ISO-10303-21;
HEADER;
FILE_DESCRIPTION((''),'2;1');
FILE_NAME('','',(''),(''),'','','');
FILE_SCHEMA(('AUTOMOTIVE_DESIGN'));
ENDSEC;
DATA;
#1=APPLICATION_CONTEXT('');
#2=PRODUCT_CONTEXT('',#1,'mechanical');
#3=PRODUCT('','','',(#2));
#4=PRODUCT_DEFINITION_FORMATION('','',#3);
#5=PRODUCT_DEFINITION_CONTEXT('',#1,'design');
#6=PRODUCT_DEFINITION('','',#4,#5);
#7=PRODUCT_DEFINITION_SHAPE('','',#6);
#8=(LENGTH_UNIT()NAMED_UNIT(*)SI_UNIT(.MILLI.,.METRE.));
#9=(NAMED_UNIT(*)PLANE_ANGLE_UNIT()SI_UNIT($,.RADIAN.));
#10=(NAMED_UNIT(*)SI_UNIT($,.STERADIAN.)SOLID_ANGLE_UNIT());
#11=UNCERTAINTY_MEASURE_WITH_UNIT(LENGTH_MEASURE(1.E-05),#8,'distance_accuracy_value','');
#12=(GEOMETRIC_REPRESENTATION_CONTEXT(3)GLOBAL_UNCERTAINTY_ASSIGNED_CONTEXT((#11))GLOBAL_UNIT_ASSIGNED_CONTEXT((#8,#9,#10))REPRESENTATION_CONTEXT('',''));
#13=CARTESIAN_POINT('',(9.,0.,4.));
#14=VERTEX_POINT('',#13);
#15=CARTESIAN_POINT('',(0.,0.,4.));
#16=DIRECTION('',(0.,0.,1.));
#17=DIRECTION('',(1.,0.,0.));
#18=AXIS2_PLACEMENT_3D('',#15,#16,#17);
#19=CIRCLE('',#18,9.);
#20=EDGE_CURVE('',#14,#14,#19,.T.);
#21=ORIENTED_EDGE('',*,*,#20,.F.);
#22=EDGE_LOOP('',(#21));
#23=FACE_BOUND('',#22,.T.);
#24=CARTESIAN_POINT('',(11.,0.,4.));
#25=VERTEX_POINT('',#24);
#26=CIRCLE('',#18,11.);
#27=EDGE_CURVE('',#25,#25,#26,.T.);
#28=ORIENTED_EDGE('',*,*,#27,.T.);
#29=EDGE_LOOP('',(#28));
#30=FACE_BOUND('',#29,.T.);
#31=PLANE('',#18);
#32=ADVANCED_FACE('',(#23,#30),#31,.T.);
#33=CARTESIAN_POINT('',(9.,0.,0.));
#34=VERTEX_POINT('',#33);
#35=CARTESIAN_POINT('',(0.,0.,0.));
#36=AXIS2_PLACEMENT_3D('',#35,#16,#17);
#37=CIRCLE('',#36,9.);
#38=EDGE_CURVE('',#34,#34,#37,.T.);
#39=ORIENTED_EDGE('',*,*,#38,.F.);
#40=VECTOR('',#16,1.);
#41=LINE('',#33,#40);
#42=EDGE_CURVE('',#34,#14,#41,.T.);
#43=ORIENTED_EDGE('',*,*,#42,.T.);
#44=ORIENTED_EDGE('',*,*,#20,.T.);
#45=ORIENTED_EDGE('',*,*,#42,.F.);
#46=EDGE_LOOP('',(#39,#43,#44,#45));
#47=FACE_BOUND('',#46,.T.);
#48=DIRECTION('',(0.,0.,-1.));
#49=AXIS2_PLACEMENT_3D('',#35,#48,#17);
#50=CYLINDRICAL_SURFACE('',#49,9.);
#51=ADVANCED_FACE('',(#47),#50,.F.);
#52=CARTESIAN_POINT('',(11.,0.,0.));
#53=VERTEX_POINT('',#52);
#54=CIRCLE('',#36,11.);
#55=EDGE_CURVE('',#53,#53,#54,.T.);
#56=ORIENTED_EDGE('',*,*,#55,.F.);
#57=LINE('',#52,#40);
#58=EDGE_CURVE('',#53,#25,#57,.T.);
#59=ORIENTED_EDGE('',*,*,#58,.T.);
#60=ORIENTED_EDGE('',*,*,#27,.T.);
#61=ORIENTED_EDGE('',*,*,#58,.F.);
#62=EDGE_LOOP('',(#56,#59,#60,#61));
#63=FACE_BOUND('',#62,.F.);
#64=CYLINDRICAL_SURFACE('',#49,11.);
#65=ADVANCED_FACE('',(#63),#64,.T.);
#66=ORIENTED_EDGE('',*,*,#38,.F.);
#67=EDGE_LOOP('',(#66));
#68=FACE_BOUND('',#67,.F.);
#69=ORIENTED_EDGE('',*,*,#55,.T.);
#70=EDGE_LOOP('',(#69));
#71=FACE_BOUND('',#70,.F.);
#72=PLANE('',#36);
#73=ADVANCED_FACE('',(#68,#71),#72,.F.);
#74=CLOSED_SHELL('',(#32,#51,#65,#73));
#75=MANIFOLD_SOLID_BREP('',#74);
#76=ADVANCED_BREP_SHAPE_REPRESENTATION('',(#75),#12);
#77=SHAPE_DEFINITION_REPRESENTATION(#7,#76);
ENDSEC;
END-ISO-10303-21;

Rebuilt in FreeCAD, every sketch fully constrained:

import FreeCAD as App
import Part
import Sketcher

V = App.Vector

doc = App.newDocument("Part")
body = doc.addObject("PartDesign::Body", "Body")

sketch1 = body.newObject("Sketcher::SketchObject", "Sketch")
sketch1.AttachmentSupport = (doc.getObject("XY_Plane"), [""])
sketch1.MapMode = "FlatFace"
sketch1.addGeometry([
    Part.Circle(V(0, 0, 0), V(0, 0, 1), 11),
    Part.Circle(V(0, 0, 0), V(0, 0, 1), 9),
], False)
sketch1.addConstraint([
    Sketcher.Constraint("Coincident", 0, 3, -1, 1),
    Sketcher.Constraint("Coincident", 1, 3, -1, 1),
    Sketcher.Constraint("Diameter", 0, 22.0),
    Sketcher.Constraint("Diameter", 1, 18.0),
])
pad1 = body.newObject("PartDesign::Pad", "Pad")
pad1.Profile = sketch1
pad1.Length = 4

doc.recompute()
